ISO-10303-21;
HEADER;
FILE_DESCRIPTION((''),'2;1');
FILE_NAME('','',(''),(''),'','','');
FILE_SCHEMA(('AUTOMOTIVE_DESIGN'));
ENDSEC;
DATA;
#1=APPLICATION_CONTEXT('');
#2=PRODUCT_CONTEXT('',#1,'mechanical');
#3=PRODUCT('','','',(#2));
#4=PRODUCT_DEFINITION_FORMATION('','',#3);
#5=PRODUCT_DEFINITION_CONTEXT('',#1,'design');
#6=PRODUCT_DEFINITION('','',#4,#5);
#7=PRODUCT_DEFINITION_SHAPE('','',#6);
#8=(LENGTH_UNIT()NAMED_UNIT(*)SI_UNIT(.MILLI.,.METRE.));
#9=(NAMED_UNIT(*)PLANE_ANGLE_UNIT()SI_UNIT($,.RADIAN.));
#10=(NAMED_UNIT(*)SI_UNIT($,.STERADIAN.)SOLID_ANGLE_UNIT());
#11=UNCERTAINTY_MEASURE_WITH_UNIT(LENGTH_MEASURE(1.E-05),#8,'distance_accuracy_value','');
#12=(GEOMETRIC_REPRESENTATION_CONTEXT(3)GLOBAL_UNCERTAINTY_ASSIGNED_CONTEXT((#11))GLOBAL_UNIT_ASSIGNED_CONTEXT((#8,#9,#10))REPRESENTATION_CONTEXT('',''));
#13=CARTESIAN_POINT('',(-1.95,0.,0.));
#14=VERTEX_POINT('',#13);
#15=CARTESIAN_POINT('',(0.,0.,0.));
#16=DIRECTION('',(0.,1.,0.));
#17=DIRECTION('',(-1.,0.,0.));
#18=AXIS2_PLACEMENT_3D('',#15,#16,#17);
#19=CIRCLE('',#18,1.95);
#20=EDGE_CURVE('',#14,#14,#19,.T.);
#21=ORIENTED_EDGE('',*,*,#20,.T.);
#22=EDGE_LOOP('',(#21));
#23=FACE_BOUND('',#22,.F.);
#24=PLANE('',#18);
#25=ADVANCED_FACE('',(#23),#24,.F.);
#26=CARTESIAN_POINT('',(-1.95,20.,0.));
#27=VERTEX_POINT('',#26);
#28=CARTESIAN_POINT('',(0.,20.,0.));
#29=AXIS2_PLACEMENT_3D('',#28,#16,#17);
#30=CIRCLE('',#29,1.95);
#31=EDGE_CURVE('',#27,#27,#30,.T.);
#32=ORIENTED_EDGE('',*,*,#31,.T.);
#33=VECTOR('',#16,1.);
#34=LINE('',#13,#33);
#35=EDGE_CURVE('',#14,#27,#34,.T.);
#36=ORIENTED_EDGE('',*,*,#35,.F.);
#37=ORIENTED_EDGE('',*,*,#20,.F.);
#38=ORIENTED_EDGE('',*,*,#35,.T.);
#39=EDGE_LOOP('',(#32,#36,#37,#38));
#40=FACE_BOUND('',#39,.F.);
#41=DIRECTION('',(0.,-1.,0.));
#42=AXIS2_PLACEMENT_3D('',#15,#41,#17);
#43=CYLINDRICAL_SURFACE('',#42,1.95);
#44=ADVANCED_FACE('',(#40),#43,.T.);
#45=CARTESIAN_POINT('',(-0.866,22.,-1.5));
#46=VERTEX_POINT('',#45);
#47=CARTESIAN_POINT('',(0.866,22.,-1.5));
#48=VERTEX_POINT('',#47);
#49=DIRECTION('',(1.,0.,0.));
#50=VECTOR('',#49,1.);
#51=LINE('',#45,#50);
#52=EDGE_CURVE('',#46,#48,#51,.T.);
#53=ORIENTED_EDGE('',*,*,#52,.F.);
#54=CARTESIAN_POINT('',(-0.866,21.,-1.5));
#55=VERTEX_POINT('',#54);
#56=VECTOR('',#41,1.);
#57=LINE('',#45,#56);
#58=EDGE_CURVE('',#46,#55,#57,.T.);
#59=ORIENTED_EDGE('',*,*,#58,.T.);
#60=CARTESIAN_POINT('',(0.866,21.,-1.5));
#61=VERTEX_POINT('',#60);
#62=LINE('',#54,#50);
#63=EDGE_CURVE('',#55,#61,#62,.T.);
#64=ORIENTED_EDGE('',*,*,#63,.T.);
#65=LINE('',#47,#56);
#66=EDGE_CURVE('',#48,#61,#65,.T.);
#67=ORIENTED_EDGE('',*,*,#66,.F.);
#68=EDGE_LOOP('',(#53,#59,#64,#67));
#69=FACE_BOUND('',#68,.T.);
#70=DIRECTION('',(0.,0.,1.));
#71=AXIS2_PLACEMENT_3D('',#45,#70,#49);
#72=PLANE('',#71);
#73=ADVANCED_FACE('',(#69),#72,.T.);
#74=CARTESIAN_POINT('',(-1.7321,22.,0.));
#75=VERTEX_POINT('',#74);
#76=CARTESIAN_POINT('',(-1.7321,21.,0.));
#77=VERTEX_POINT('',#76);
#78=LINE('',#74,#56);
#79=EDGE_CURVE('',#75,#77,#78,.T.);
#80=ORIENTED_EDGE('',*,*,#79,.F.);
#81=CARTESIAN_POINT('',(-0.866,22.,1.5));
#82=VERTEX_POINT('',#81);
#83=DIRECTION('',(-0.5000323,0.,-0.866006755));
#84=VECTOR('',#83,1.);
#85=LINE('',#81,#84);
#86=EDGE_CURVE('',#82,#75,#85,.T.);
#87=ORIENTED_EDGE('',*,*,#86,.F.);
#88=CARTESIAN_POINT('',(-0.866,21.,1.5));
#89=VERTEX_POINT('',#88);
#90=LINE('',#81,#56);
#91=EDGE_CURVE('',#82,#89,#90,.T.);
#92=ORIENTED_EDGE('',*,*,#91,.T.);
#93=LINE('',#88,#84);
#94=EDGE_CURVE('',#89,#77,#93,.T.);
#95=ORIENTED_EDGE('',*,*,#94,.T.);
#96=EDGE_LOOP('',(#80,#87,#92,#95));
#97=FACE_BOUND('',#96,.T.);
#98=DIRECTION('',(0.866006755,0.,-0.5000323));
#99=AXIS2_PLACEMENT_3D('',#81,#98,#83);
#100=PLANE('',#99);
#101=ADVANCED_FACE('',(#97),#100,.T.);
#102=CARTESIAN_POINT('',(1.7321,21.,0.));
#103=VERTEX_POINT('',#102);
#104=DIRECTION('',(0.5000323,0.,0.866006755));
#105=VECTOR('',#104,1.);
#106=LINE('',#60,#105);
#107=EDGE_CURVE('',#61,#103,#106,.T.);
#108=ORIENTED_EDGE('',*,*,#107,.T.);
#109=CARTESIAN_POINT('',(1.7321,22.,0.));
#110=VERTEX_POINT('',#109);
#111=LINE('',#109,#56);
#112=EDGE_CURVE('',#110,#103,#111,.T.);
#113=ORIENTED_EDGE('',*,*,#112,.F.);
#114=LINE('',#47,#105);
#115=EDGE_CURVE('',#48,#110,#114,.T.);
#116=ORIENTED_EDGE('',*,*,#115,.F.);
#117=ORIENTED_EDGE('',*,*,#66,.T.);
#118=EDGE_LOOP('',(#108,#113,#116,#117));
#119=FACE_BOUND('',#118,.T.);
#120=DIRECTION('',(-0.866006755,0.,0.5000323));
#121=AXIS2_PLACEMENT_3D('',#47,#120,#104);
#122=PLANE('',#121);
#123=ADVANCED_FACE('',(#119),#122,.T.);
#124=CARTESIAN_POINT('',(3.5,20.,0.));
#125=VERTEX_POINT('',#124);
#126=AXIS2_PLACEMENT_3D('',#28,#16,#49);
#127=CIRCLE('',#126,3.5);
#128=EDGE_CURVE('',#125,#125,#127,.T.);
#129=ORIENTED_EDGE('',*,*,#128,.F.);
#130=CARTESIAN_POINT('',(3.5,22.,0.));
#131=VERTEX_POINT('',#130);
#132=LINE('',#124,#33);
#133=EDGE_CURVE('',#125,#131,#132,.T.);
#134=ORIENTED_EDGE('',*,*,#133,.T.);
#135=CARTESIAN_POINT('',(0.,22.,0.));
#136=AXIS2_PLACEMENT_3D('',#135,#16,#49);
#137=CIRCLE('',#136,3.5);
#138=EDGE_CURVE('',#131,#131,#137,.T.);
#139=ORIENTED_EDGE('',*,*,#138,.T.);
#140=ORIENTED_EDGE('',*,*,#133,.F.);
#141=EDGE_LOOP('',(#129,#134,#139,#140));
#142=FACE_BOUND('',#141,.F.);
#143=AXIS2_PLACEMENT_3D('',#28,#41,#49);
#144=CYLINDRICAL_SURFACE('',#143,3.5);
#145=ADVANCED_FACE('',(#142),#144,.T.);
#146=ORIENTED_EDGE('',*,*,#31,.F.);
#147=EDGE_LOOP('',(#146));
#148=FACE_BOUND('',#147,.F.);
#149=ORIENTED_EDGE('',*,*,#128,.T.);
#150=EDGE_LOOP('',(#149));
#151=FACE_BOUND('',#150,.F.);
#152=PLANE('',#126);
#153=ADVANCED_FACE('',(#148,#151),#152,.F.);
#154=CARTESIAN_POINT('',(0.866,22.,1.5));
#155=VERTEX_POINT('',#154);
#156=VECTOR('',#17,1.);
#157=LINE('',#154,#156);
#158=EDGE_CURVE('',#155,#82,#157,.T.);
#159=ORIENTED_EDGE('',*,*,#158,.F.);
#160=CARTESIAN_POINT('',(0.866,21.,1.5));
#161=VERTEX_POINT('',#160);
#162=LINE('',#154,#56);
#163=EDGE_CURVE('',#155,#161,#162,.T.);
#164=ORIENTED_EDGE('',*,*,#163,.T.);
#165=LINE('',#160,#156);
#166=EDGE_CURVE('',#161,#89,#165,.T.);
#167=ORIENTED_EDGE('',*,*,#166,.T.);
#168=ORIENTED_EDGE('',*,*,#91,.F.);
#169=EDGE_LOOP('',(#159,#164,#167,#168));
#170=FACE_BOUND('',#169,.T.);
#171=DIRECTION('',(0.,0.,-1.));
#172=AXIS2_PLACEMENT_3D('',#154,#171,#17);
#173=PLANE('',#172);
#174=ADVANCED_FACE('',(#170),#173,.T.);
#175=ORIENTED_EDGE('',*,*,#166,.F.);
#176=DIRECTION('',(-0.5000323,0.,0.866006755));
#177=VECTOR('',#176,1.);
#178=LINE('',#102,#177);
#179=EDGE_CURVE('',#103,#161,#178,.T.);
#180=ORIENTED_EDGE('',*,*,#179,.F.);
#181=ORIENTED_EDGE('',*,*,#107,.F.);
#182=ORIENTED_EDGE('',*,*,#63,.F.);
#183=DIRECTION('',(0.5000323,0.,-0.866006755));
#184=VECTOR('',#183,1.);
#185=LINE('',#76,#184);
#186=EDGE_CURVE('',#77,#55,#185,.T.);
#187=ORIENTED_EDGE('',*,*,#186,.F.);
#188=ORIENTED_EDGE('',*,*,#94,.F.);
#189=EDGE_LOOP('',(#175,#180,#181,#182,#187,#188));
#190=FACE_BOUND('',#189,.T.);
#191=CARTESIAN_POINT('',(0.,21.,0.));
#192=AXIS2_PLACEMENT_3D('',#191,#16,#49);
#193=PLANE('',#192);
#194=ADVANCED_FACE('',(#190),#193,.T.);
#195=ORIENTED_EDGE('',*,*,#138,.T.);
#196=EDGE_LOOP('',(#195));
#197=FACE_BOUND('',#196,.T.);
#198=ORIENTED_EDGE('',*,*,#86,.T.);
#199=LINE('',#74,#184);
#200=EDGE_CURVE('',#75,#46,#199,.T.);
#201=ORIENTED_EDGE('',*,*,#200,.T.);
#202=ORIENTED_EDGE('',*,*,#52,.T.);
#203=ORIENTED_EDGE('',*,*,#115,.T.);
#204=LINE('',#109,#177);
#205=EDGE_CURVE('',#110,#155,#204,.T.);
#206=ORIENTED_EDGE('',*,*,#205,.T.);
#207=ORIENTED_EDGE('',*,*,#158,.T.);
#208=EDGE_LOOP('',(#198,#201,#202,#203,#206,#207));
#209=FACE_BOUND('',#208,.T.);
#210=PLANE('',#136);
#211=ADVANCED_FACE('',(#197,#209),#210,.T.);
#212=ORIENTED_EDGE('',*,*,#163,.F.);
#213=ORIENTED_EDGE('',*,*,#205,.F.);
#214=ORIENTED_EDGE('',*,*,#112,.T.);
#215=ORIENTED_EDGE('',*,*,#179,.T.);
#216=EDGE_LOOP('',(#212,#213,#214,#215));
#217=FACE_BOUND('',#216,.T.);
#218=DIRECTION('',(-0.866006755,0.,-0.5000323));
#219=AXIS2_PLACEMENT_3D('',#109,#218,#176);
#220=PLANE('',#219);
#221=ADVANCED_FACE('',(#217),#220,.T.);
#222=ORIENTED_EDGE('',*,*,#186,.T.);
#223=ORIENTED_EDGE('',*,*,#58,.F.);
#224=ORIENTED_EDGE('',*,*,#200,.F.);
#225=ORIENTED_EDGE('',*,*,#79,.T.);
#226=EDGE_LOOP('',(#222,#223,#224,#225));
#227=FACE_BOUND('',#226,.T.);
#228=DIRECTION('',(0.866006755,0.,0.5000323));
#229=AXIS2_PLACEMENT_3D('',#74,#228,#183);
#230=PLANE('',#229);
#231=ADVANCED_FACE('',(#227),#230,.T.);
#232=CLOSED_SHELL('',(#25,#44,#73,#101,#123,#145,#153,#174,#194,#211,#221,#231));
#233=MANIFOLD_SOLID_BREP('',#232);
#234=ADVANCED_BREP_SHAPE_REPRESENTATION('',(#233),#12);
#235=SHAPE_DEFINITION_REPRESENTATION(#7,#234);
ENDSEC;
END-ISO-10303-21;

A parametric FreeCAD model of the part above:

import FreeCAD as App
import Part
import Sketcher

V = App.Vector

doc = App.newDocument("Part")
params = doc.addObject("Spreadsheet::Sheet", "Params")
for row, (alias, value) in enumerate([
    ("sketch1_diameter", "3.9 mm"),
    ("pad1_length", "20 mm"),
    ("sketch2_diameter", "7 mm"),
    ("pad2_length", "2 mm"),
    ("pocket1_length", "1 mm"),
], start=1):
    params.set(f"A{row}", alias)
    params.set(f"B{row}", "=" + value)
    params.setAlias(f"B{row}", alias)

body = doc.addObject("PartDesign::Body", "Body")

sketch1 = body.newObject("Sketcher::SketchObject", "Sketch")
sketch1.AttachmentSupport = (doc.getObject("XZ_Plane"), [""])
sketch1.MapMode = "FlatFace"
sketch1.addGeometry(Part.Circle(V(0, 0, 0), V(0, 0, 1), 1.95), False)
sketch1.addConstraint([
    Sketcher.Constraint("Coincident", 0, 3, -1, 1),
    Sketcher.Constraint("Diameter", 0, 3.9),
])
sketch1.setExpression("Constraints[1]", "Params.sketch1_diameter")
pad1 = body.newObject("PartDesign::Pad", "Pad")
pad1.Profile = sketch1
pad1.setExpression("Length", "Params.pad1_length")
pad1.Reversed = True

sketch2 = body.newObject("Sketcher::SketchObject", "Sketch001")
sketch2.AttachmentSupport = (doc.getObject("XZ_Plane"), [""])
sketch2.MapMode = "FlatFace"
sketch2.AttachmentOffset = App.Placement(V(0, 0, -20), App.Rotation())
sketch2.addGeometry(Part.Circle(V(0, 0, 0), V(0, 0, 1), 3.5), False)
sketch2.addConstraint([
    Sketcher.Constraint("Coincident", 0, 3, -1, 1),
    Sketcher.Constraint("Diameter", 0, 7.0),
])
sketch2.setExpression("Constraints[1]", "Params.sketch2_diameter")
pad2 = body.newObject("PartDesign::Pad", "Pad001")
pad2.Profile = sketch2
pad2.setExpression("Length", "Params.pad2_length")
pad2.Reversed = True

sketch3 = body.newObject("Sketcher::SketchObject", "Sketch002")
sketch3.AttachmentSupport = (doc.getObject("XZ_Plane"), [""])
sketch3.MapMode = "FlatFace"
sketch3.AttachmentOffset = App.Placement(V(0, 0, -22), App.Rotation())
sketch3.addGeometry([
    Part.LineSegment(V(1.7321, 0, 0), V(0.866, -1.5, 0)),
    Part.LineSegment(V(0.866, -1.5, 0), V(-0.866, -1.5, 0)),
    Part.LineSegment(V(-0.866, -1.5, 0), V(-1.7321, 0, 0)),
    Part.LineSegment(V(-1.7321, 0, 0), V(-0.866, 1.5, 0)),
    Part.LineSegment(V(-0.866, 1.5, 0), V(0.866, 1.5, 0)),
    Part.LineSegment(V(0.866, 1.5, 0), V(1.7321, 0, 0)),
], False)
sketch3.addConstraint([
    Sketcher.Constraint("Coincident", 0, 2, 1, 1),
    Sketcher.Constraint("Coincident", 1, 2, 2, 1),
    Sketcher.Constraint("Coincident", 2, 2, 3, 1),
    Sketcher.Constraint("Coincident", 3, 2, 4, 1),
    Sketcher.Constraint("Coincident", 4, 2, 5, 1),
    Sketcher.Constraint("Coincident", 5, 2, 0, 1),
    Sketcher.Constraint("Horizontal", 1),
    Sketcher.Constraint("Horizontal", 4),
    Sketcher.Constraint("Symmetric", 0, 2, 3, 2, -1, 1),
    Sketcher.Constraint("Symmetric", 2, 2, 5, 2, -1, 1),
    Sketcher.Constraint("PointOnObject", 2, 2, -1),
    Sketcher.Constraint("Parallel", 2, 5),
    Sketcher.Constraint("Vertical", 1, 2, 3, 2),
    Sketcher.Constraint("DistanceY", 1, 2, 3, 2, 3.0),
    Sketcher.Constraint("DistanceX", 1, 2, 1, 1, 1.732),
    Sketcher.Constraint("Distance", 0, 1.732),
])
pocket1 = body.newObject("PartDesign::Pocket", "Pocket")
pocket1.Profile = sketch3
pocket1.setExpression("Length", "Params.pocket1_length")
pocket1.Reversed = True

doc.recompute()
